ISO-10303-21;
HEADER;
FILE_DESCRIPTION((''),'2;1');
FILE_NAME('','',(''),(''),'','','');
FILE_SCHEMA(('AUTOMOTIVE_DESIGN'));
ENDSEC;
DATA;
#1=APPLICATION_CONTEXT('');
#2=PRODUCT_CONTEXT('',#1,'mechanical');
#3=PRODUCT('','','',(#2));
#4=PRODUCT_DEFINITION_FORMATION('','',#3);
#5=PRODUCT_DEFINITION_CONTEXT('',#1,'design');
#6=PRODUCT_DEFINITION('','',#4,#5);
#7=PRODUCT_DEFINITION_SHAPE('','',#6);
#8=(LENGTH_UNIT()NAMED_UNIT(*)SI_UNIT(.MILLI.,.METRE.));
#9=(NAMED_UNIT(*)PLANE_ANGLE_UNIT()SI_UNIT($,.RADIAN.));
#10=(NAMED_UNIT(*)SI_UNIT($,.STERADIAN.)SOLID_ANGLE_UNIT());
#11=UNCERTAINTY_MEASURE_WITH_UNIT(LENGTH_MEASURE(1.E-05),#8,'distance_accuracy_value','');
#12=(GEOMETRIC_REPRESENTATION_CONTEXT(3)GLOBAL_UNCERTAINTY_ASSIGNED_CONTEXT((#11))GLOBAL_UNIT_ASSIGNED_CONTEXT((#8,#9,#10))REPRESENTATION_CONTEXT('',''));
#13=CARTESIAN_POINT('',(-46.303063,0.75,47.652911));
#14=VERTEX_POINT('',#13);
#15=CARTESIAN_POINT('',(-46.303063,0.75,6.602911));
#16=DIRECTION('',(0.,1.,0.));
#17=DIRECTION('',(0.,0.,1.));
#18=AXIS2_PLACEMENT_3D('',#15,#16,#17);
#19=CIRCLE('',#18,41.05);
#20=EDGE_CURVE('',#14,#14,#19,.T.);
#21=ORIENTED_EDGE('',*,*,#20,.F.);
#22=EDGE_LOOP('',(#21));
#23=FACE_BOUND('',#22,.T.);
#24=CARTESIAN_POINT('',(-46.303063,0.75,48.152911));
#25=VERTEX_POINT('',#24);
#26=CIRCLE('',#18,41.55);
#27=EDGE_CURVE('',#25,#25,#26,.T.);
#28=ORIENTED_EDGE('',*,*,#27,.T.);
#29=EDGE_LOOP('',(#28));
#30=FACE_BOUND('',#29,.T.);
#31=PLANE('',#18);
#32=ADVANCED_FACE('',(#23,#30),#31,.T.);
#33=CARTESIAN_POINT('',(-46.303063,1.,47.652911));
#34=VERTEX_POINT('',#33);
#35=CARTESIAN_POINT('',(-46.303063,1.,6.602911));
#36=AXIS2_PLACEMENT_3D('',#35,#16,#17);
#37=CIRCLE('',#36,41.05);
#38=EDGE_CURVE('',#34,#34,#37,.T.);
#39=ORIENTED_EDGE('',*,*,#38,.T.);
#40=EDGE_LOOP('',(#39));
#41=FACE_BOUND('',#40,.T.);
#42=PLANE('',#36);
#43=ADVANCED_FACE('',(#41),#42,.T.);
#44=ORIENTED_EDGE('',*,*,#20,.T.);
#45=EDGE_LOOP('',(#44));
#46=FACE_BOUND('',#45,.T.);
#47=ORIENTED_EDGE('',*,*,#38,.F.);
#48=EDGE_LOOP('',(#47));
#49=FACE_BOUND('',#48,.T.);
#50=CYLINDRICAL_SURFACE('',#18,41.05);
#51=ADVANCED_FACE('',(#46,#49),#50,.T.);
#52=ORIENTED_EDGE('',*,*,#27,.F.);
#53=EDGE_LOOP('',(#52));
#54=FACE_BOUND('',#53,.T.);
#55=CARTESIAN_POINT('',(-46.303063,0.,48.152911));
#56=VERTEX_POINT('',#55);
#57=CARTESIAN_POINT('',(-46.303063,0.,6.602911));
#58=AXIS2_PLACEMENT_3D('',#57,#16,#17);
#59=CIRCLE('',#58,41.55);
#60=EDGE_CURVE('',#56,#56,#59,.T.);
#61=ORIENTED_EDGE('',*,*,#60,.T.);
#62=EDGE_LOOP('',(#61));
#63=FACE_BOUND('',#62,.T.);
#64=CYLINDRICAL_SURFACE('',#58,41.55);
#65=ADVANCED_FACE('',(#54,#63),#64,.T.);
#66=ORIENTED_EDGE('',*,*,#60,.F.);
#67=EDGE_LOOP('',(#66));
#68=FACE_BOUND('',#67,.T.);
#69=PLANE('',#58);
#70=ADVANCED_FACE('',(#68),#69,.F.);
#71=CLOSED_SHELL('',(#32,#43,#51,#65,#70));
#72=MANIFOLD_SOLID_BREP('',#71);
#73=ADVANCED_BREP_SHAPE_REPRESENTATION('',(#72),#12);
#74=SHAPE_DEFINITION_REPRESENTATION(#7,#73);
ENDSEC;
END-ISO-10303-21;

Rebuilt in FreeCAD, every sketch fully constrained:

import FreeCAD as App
import Part
import Sketcher

doc = App.newDocument("Part")
body = doc.addObject("PartDesign::Body", "Body")

# Sketch on XZ plane
sketch1 = body.newObject("Sketcher::SketchObject", "Sketch")
sketch1.AttachmentSupport = (doc.getObject("XZ_Plane"), [""])
sketch1.MapMode = "FlatFace"
sketch1.addGeometry(Part.Circle(App.Vector(-46, 7, 0), App.Vector(0, 0, 1), 43), False)
sketch1.addConstraint([
    Sketcher.Constraint("Diameter", 0, 85.1),
    Sketcher.Constraint("DistanceY", -1, 1, 0, 3, 6.602911),
    Sketcher.Constraint("DistanceX", 0, 3, -1, 1, 46.303063),
])
pad1 = body.newObject("PartDesign::Pad", "Pad")
pad1.Profile = sketch1
pad1.Length = 1
pad1.Reversed = True

# Sketch on XZ plane
sketch2 = body.newObject("Sketcher::SketchObject", "Sketch001")
sketch2.AttachmentSupport = (doc.getObject("XZ_Plane"), [""])
sketch2.MapMode = "FlatFace"
sketch2.AttachmentOffset = App.Placement(App.Vector(0, 0, -1), App.Rotation())
sketch2.addGeometry([
    Part.Circle(App.Vector(-46, 7, 0), App.Vector(0, 0, 1), 43),
    Part.Circle(App.Vector(-46, 7, 0), App.Vector(0, 0, 1), 42),
], False)
sketch2.addConstraint([
    Sketcher.Constraint("Coincident", 1, 3, 0, 3),
    Sketcher.Constraint("Diameter", 0, 85.1),
    Sketcher.Constraint("Diameter", 1, 83.1),
    Sketcher.Constraint("DistanceY", -1, 1, 0, 3, 6.602911),
    Sketcher.Constraint("DistanceX", 0, 3, -1, 1, 46.303063),
])
pocket1 = body.newObject("PartDesign::Pocket", "Pocket")
pocket1.Profile = sketch2
pocket1.Type = "ThroughAll"
pocket1.Reversed = True

# Sketch on XZ plane
sketch3 = body.newObject("Sketcher::SketchObject", "Sketch002")
sketch3.AttachmentSupport = (doc.getObject("XZ_Plane"), [""])
sketch3.MapMode = "FlatFace"
sketch3.AttachmentOffset = App.Placement(App.Vector(0, 0, -1), App.Rotation())
sketch3.addGeometry([
    Part.Circle(App.Vector(-46, 7, 0), App.Vector(0, 0, 1), 42),
    Part.Circle(App.Vector(-46, 7, 0), App.Vector(0, 0, 1), 41),
], False)
sketch3.addConstraint([
    Sketcher.Constraint("Coincident", 1, 3, 0, 3),
    Sketcher.Constraint("Diameter", 0, 83.1),
    Sketcher.Constraint("Diameter", 1, 82.1),
    Sketcher.Constraint("DistanceY", -1, 1, 0, 3, 6.602911),
    Sketcher.Constraint("DistanceX", 0, 3, -1, 1, 46.303063),
])
pocket2 = body.newObject("PartDesign::Pocket", "Pocket001")
pocket2.Profile = sketch3
pocket2.Length = 0.25
pocket2.Reversed = True

doc.recompute()
